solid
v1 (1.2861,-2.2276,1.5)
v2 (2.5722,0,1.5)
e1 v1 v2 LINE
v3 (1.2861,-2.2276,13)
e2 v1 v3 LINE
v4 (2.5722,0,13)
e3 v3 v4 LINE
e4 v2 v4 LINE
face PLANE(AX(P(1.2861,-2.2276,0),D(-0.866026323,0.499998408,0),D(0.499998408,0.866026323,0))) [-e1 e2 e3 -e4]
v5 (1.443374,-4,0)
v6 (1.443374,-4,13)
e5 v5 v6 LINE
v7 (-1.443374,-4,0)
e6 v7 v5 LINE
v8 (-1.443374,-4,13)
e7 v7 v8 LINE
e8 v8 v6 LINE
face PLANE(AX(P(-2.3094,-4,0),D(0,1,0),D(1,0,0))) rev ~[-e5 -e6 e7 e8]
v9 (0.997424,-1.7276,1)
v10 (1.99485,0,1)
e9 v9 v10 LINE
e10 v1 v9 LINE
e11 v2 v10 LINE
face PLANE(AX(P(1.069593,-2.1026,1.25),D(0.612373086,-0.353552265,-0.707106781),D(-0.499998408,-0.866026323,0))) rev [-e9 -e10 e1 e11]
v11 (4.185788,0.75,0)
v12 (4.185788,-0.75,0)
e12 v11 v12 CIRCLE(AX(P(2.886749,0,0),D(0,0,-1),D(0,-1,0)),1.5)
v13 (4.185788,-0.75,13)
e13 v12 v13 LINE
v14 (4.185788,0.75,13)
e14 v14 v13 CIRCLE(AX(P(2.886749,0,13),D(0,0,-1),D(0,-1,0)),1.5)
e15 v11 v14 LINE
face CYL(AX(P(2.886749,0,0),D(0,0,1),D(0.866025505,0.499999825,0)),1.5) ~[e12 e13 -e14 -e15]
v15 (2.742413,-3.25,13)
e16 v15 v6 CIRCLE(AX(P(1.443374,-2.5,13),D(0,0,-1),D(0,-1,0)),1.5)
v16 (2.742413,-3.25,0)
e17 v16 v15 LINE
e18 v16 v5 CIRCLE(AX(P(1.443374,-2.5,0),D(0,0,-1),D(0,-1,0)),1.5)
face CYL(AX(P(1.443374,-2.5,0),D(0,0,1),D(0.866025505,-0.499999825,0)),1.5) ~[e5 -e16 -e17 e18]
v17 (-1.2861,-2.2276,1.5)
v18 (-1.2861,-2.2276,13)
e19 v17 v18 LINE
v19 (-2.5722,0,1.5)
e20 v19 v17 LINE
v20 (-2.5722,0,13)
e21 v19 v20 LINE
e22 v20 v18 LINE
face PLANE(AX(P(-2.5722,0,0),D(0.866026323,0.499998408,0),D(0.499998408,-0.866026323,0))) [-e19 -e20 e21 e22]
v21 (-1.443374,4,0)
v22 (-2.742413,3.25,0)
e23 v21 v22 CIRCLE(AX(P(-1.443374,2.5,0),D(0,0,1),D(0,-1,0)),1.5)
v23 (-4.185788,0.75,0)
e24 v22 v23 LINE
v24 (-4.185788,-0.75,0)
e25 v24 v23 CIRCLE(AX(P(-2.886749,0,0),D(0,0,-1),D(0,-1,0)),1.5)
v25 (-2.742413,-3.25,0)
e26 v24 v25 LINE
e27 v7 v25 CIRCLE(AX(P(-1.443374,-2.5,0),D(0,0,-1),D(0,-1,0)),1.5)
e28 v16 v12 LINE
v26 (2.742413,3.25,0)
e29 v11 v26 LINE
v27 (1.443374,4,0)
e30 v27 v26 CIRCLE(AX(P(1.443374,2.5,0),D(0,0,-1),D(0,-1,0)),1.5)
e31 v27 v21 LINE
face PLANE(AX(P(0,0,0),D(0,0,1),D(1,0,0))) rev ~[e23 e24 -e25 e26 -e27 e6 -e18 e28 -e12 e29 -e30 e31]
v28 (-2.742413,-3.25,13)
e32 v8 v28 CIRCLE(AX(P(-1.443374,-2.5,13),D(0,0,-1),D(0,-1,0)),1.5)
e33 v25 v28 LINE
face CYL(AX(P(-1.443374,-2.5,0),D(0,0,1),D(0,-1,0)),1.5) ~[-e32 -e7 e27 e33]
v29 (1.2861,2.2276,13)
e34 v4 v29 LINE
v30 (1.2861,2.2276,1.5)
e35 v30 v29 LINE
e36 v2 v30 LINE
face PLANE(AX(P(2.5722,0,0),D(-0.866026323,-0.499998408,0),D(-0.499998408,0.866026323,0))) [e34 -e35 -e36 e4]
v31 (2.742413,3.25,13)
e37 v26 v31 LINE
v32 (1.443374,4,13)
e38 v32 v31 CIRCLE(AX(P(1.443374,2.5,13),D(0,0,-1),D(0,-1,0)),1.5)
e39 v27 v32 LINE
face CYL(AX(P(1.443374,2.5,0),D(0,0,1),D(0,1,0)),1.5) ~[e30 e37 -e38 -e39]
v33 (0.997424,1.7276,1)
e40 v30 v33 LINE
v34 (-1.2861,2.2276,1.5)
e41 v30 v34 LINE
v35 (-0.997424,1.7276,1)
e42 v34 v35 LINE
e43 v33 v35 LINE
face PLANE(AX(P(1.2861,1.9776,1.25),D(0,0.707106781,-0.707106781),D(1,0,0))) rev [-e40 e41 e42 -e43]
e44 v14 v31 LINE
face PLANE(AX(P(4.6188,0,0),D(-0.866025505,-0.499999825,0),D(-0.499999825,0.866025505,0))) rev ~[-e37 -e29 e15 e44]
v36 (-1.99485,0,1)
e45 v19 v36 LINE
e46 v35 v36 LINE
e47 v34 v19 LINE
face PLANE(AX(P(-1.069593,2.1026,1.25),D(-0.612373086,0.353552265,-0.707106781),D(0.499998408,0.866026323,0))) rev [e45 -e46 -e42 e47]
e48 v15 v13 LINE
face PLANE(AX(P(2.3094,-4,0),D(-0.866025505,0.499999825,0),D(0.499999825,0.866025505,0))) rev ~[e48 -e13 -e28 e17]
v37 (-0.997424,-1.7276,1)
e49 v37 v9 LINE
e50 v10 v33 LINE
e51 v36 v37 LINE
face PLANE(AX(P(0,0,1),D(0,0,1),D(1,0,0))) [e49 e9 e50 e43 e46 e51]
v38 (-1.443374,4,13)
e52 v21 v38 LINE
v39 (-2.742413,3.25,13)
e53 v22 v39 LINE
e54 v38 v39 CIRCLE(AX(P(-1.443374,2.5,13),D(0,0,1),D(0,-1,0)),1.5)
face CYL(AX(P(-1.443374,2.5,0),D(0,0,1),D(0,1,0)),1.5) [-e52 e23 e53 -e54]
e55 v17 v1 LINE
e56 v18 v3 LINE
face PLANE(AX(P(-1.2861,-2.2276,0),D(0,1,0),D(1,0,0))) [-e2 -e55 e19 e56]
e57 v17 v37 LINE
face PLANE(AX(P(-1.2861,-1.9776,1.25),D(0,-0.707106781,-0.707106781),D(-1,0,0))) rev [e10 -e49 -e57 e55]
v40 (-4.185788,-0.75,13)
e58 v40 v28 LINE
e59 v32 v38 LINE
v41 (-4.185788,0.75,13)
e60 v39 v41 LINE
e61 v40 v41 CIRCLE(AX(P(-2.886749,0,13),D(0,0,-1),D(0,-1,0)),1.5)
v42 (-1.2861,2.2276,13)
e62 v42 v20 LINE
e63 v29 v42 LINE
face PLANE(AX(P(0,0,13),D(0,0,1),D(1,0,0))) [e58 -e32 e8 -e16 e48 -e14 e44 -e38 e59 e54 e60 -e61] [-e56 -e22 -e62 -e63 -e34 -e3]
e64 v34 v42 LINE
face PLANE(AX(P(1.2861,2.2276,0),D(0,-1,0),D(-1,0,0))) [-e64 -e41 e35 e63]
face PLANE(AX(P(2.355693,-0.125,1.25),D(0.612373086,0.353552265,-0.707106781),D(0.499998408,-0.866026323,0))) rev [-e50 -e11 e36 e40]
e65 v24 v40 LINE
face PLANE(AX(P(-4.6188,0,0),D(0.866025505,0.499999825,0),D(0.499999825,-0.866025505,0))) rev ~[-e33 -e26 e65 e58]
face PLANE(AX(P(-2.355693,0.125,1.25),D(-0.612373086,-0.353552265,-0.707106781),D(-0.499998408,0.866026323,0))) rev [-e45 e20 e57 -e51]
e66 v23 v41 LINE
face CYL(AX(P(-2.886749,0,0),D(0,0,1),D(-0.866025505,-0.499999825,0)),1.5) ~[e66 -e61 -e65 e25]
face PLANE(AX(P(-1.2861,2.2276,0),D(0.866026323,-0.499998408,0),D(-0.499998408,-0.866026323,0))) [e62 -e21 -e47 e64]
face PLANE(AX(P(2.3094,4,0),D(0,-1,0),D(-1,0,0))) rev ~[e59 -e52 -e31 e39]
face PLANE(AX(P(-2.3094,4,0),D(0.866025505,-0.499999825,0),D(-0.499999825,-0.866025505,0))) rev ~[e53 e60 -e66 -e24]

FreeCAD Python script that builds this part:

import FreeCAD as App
import Part
import Sketcher
from FreeCAD import Vector
Q = App.Units.Quantity


def edges_at(feature, points):
    """Names of the edges that pass closest to the given points."""
    edges = feature.Shape.Edges
    near = lambda p: min(range(len(edges)), key=lambda i: edges[i].distToShape(Part.Vertex(*p))[0])
    return sorted({f"Edge{near(p) + 1}" for p in points})

doc = App.newDocument("Part")
body = doc.addObject("PartDesign::Body", "Body")

sketch1 = body.newObject("Sketcher::SketchObject", "Sketch")
sketch1.AttachmentSupport = (doc.getObject("XY_Plane"), [""])
sketch1.MapMode = "FlatFace"
sketch1.addGeometry([
    Part.LineSegment(Vector(2.3, 4, 0), Vector(-2.3, 4, 0)),
    Part.LineSegment(Vector(-2.3, 4, 0), Vector(-4.6, 0, 0)),
    Part.LineSegment(Vector(-4.6, 0, 0), Vector(-2.3, -4, 0)),
    Part.LineSegment(Vector(-2.3, -4, 0), Vector(2.3, -4, 0)),
    Part.LineSegment(Vector(2.3, -4, 0), Vector(4.6, 0, 0)),
    Part.LineSegment(Vector(4.6, 0, 0), Vector(2.3, 4, 0)),
    Part.LineSegment(Vector(-2.6, 0, 0), Vector(-1.3, 2.2, 0)),
    Part.LineSegment(Vector(-1.3, 2.2, 0), Vector(1.3, 2.2, 0)),
    Part.LineSegment(Vector(1.3, 2.2, 0), Vector(2.6, 0, 0)),
    Part.LineSegment(Vector(2.6, 0, 0), Vector(1.3, -2.2, 0)),
    Part.LineSegment(Vector(1.3, -2.2, 0), Vector(-1.3, -2.2, 0)),
    Part.LineSegment(Vector(-1.3, -2.2, 0), Vector(-2.6, 0, 0)),
], False)
sketch1.addConstraint([
    Sketcher.Constraint("Coincident", 0, 2, 1, 1),
    Sketcher.Constraint("Coincident", 1, 2, 2, 1),
    Sketcher.Constraint("Coincident", 2, 2, 3, 1),
    Sketcher.Constraint("Coincident", 3, 2, 4, 1),
    Sketcher.Constraint("Coincident", 4, 2, 5, 1),
    Sketcher.Constraint("Coincident", 5, 2, 0, 1),
    Sketcher.Constraint("Coincident", 6, 2, 7, 1),
    Sketcher.Constraint("Coincident", 7, 2, 8, 1),
    Sketcher.Constraint("Coincident", 8, 2, 9, 1),
    Sketcher.Constraint("Coincident", 9, 2, 10, 1),
    Sketcher.Constraint("Coincident", 10, 2, 11, 1),
    Sketcher.Constraint("Coincident", 11, 2, 6, 1),
    Sketcher.Constraint("Horizontal", 0),
    Sketcher.Constraint("Horizontal", 3),
    Sketcher.Constraint("Horizontal", 7),
    Sketcher.Constraint("Horizontal", 10),
    Sketcher.Constraint("Symmetric", 0, 2, 3, 2, -1, 1),
    Sketcher.Constraint("Symmetric", 1, 2, 4, 2, -1, 1),
    Sketcher.Constraint("Symmetric", 6, 2, 9, 2, -1, 1),
    Sketcher.Constraint("Symmetric", 8, 2, 11, 2, -1, 1),
    Sketcher.Constraint("PointOnObject", 1, 2, -1),
    Sketcher.Constraint("PointOnObject", 8, 2, -1),
    Sketcher.Constraint("Parallel", 2, 5),
    Sketcher.Constraint("Parallel", 4, 6),
    Sketcher.Constraint("Parallel", 5, 8),
    Sketcher.Constraint("Parallel", 8, 11),
    Sketcher.Constraint("Vertical", 0, 2, 2, 2),
    Sketcher.Constraint("Angle", 1, Q("-120 deg")),
    Sketcher.Constraint("DistanceY", -1, 1, 0, 2, Q("4 mm")),
    Sketcher.Constraint("DistanceX", 0, 2, 0, 1, Q("4.6188 mm")),
    Sketcher.Constraint("DistanceX", 7, 1, 7, 2, Q("2.5722 mm")),
    Sketcher.Constraint("DistanceX", 7, 2, 8, 2, Q("1.286 mm")),
])
pad1 = body.newObject("PartDesign::Pad", "Pad")
pad1.Profile = sketch1
pad1.Length = 13

sketch2 = body.newObject("Sketcher::SketchObject", "Sketch001")
sketch2.AttachmentSupport = (doc.getObject("XY_Plane"), [""])
sketch2.MapMode = "FlatFace"
sketch2.addGeometry([
    Part.LineSegment(Vector(1.3, 2.2, 0), Vector(-1.3, 2.2, 0)),
    Part.LineSegment(Vector(-1.3, 2.2, 0), Vector(-2.6, 0, 0)),
    Part.LineSegment(Vector(-2.6, 0, 0), Vector(-1.3, -2.2, 0)),
    Part.LineSegment(Vector(-1.3, -2.2, 0), Vector(1.3, -2.2, 0)),
    Part.LineSegment(Vector(1.3, -2.2, 0), Vector(2.6, 0, 0)),
    Part.LineSegment(Vector(2.6, 0, 0), Vector(1.3, 2.2, 0)),
], False)
sketch2.addConstraint([
    Sketcher.Constraint("Coincident", 0, 2, 1, 1),
    Sketcher.Constraint("Coincident", 1, 2, 2, 1),
    Sketcher.Constraint("Coincident", 2, 2, 3, 1),
    Sketcher.Constraint("Coincident", 3, 2, 4, 1),
    Sketcher.Constraint("Coincident", 4, 2, 5, 1),
    Sketcher.Constraint("Coincident", 5, 2, 0, 1),
    Sketcher.Constraint("Horizontal", 0),
    Sketcher.Constraint("Horizontal", 3),
    Sketcher.Constraint("Symmetric", 0, 2, 3, 2, -1, 1),
    Sketcher.Constraint("Symmetric", 1, 2, 4, 2, -1, 1),
    Sketcher.Constraint("PointOnObject", 1, 2, -1),
    Sketcher.Constraint("Parallel", 2, 5),
    Sketcher.Constraint("Vertical", 0, 2, 2, 2),
    Sketcher.Constraint("Angle", 1, Q("-120 deg")),
    Sketcher.Constraint("DistanceX", 0, 2, 0, 1, Q("2.5722 mm")),
    Sketcher.Constraint("DistanceX", 1, 2, 0, 2, Q("1.286 mm")),
])
pad2 = body.newObject("PartDesign::Pad", "Pad001")
pad2.Profile = sketch2
pad2.Length = 1
doc.recompute()

chamfer = body.newObject("PartDesign::Chamfer", "Chamfer")
chamfer.Base = (pad2, edges_at(pad2, [
    (1.929, -1.114, 1),
    (1.929, 1.114, 1),
    (0, 2.228, 1),
    (-1.929, 1.114, 1),
    (-1.929, -1.114, 1),
    (0, -2.228, 1),
]))
chamfer.Size = 0.5
doc.recompute()

fillet = body.newObject("PartDesign::Fillet", "Fillet")
fillet.Base = (chamfer, edges_at(chamfer, [
    (2.309, 4, 6.5),
    (-2.309, 4, 6.5),
    (-4.619, 0, 6.5),
    (-2.309, -4, 6.5),
    (2.309, -4, 6.5),
    (4.619, 0, 6.5),
]))
fillet.Radius = 1.5

doc.recompute()
